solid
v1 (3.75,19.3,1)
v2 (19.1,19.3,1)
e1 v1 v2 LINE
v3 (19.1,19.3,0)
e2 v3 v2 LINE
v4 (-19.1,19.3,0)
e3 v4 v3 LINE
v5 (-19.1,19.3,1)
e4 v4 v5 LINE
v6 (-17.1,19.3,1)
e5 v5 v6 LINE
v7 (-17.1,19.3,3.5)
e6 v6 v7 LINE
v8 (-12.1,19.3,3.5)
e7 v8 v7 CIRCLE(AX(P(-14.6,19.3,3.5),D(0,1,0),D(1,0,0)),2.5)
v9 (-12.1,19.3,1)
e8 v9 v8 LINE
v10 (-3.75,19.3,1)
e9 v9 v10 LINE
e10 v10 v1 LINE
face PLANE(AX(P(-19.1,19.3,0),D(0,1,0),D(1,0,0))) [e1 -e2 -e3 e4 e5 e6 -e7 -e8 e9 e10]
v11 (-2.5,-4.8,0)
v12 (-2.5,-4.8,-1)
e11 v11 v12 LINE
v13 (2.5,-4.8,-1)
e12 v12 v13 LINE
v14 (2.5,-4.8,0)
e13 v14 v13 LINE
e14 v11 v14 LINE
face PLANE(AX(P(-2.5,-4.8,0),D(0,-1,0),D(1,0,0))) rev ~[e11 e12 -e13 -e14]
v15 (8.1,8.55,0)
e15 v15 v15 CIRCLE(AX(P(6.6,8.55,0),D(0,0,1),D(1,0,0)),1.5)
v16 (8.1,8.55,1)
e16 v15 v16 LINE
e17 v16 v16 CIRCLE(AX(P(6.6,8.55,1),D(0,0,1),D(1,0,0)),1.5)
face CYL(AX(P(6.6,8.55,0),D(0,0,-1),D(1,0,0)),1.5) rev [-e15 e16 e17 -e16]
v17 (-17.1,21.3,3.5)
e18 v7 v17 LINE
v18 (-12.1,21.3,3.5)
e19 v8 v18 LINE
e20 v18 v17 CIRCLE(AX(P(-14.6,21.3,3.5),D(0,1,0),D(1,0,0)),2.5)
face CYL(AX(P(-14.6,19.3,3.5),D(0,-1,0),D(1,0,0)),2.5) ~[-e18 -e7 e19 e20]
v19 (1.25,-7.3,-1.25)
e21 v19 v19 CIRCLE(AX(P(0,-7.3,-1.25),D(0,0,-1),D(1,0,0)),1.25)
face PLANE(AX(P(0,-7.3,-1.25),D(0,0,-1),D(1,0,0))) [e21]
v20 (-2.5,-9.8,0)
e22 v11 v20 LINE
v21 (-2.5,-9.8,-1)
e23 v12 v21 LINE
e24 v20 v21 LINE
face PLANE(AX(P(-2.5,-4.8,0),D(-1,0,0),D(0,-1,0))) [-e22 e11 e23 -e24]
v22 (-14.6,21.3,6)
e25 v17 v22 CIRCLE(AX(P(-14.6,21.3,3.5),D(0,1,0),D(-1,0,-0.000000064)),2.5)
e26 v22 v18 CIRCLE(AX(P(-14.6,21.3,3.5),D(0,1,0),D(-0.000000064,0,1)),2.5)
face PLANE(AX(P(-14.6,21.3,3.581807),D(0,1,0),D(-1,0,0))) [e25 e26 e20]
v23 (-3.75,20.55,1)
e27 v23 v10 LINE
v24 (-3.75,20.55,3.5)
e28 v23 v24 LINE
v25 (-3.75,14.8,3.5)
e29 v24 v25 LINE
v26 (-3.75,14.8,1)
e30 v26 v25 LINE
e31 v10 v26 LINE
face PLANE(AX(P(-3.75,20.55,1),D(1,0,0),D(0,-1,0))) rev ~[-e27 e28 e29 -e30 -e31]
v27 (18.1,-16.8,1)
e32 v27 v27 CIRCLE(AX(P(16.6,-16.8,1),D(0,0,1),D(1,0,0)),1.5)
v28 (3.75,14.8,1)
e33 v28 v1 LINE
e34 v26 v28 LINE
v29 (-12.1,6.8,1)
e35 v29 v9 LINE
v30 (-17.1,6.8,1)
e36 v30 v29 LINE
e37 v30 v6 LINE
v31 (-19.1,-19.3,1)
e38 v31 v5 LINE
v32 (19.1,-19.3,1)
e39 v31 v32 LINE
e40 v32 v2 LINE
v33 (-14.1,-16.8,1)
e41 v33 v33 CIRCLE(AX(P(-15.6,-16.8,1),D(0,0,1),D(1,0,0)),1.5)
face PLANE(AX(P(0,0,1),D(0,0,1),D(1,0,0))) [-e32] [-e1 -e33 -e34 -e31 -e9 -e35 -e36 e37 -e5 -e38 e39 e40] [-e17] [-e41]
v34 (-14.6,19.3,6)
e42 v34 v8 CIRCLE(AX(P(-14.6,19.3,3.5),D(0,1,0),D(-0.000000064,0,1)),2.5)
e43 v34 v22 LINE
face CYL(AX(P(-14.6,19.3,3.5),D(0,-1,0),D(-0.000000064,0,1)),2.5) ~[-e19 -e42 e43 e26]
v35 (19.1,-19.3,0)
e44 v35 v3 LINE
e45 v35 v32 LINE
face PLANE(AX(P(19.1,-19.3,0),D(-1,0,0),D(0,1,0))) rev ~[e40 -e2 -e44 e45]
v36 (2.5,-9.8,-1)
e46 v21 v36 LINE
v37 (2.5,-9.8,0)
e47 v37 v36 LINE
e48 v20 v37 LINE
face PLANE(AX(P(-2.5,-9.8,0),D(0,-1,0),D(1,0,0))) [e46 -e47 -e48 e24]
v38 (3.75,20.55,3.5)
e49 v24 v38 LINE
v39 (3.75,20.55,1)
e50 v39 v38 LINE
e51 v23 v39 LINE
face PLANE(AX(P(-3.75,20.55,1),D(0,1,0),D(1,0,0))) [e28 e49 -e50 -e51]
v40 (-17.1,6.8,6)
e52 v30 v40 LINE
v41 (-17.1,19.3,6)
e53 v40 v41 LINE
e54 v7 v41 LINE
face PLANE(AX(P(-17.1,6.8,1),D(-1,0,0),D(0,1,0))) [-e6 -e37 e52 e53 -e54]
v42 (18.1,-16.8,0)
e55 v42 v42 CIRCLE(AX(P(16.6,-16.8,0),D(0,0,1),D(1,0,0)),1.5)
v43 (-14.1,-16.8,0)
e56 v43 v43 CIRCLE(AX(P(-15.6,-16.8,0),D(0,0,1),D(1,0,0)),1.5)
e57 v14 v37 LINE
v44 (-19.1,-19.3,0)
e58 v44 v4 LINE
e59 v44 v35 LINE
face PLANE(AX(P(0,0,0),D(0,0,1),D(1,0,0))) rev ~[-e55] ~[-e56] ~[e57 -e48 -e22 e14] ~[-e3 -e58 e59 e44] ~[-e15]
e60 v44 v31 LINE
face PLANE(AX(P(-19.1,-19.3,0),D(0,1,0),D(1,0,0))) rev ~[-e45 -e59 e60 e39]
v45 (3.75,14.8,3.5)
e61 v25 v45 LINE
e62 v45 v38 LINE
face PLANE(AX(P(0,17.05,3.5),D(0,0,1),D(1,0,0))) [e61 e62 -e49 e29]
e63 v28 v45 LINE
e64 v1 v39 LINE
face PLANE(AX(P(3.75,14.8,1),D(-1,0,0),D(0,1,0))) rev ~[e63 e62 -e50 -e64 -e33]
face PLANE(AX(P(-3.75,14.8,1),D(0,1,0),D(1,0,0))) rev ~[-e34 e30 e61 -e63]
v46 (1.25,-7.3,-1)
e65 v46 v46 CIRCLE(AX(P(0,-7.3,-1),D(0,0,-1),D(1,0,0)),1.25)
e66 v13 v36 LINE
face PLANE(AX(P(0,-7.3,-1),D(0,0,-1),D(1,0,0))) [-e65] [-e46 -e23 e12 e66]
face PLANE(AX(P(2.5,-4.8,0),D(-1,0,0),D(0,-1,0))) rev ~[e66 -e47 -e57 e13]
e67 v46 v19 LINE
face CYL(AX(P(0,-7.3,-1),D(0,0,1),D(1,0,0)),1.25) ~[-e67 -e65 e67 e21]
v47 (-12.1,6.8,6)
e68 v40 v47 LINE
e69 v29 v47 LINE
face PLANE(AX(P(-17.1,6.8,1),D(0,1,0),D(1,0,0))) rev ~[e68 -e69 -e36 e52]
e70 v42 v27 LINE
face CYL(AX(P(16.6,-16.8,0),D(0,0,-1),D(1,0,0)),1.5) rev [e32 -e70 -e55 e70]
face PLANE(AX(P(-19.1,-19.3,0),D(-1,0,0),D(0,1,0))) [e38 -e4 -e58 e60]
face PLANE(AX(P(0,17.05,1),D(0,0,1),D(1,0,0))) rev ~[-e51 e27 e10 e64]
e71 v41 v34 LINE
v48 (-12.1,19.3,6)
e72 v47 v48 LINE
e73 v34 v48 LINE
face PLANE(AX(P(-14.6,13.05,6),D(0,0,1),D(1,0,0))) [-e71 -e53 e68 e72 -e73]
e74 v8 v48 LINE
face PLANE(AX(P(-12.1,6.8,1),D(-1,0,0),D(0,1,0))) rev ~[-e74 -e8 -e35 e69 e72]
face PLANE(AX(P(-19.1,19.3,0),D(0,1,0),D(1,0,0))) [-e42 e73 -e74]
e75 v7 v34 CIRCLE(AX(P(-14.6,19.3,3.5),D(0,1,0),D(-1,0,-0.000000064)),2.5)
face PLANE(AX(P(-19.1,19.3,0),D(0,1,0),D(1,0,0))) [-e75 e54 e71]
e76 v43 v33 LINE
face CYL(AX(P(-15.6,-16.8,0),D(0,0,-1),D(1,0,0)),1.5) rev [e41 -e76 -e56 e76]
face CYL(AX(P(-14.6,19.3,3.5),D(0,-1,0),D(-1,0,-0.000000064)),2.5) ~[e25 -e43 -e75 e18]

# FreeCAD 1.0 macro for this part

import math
import FreeCAD as App
import Part
import Sketcher
from FreeCAD import Vector


def add_polygon(sketch, points):
    """Adds a closed chain of lines whose ends are joined by coincident constraints."""
    first, n = sketch.GeometryCount, len(points)
    for a, b in zip(points, points[1:] + points[:1]):
        sketch.addGeometry(Part.LineSegment(App.Vector(*a, 0), App.Vector(*b, 0)), False)
    for i in range(n):
        sketch.addConstraint(Sketcher.Constraint("Coincident", first + i, 2, first + (i + 1) % n, 1))

doc = App.newDocument("Part")
body = doc.addObject("PartDesign::Body", "Body")

sketch1 = body.newObject("Sketcher::SketchObject", "Sketch")
sketch1.AttachmentSupport = (doc.getObject("XY_Plane"), [""])
sketch1.MapMode = "FlatFace"
add_polygon(sketch1, [(-19.1, 19.3), (-19.1, -19.3), (19.1, -19.3), (19.1, 19.3)])
sketch1.addGeometry(Part.Circle(Vector(-15.6, -16.8, 0), Vector(0, 0, 1), 1.5), False)
sketch1.addGeometry(Part.Circle(Vector(16.6, -16.8, 0), Vector(0, 0, 1), 1.5), False)
sketch1.addGeometry(Part.Circle(Vector(6.6, 8.6, 0), Vector(0, 0, 1), 1.5), False)
sketch1.addConstraint([
    Sketcher.Constraint("Vertical", 0),
    Sketcher.Constraint("Horizontal", 1),
    Sketcher.Constraint("Vertical", 2),
    Sketcher.Constraint("Horizontal", 3),
    Sketcher.Constraint("Equal", 4, 5),
    Sketcher.Constraint("Equal", 5, 6),
    Sketcher.Constraint("Symmetric", 0, 2, 2, 2, -1, 1),
    Sketcher.Constraint("Horizontal", 4, 3, 5, 3),
    Sketcher.Constraint("Diameter", 4, 3.0),
    Sketcher.Constraint("DistanceX", 1, 1, 1, 2, 38.2),
    Sketcher.Constraint("DistanceY", 0, 2, 0, 1, 38.6),
    Sketcher.Constraint("DistanceX", 6, 3, 5, 3, 10.0),
    Sketcher.Constraint("DistanceX", 4, 3, -1, 1, 15.6),
    Sketcher.Constraint("DistanceY", 4, 3, -1, 1, 16.8),
    Sketcher.Constraint("DistanceX", -1, 1, 5, 3, 16.6),
    Sketcher.Constraint("DistanceY", -1, 1, 6, 3, 8.55),
])
pad1 = body.newObject("PartDesign::Pad", "Pad")
pad1.Profile = sketch1
pad1.Length = 1

sketch2 = body.newObject("Sketcher::SketchObject", "Sketch001")
sketch2.AttachmentSupport = (doc.getObject("XY_Plane"), [""])
sketch2.MapMode = "FlatFace"
sketch2.AttachmentOffset = App.Placement(Vector(0, 0, 1), App.Rotation())
add_polygon(sketch2, [(-4, 15), (4, 15), (4, 21), (-4, 21)])
sketch2.addConstraint([
    Sketcher.Constraint("Horizontal", 0),
    Sketcher.Constraint("Vertical", 1),
    Sketcher.Constraint("Horizontal", 2),
    Sketcher.Constraint("Vertical", 3),
    Sketcher.Constraint("DistanceX", 0, 1, 0, 2, 7.5),
    Sketcher.Constraint("DistanceY", 1, 1, 1, 2, 5.75),
    Sketcher.Constraint("DistanceY", -1, 1, 0, 2, 14.8),
    Sketcher.Constraint("DistanceX", -1, 1, 0, 2, 3.75),
])
pad2 = body.newObject("PartDesign::Pad", "Pad001")
pad2.Profile = sketch2
pad2.Length = 2.5

sketch3 = body.newObject("Sketcher::SketchObject", "Sketch002")
sketch3.AttachmentSupport = (doc.getObject("XY_Plane"), [""])
sketch3.MapMode = "FlatFace"
add_polygon(sketch3, [(-2, -10), (-2, -5), (2, -5), (2, -10)])
sketch3.addConstraint([
    Sketcher.Constraint("Vertical", 0),
    Sketcher.Constraint("Horizontal", 1),
    Sketcher.Constraint("Vertical", 2),
    Sketcher.Constraint("Horizontal", 3),
    Sketcher.Constraint("Equal", 3, 0),
    Sketcher.Constraint("DistanceX", 1, 1, 1, 2, 5.0),
    Sketcher.Constraint("DistanceX", 0, 2, -1, 1, 2.5),
    Sketcher.Constraint("DistanceY", 0, 2, -1, 1, 4.8),
])
pad3 = body.newObject("PartDesign::Pad", "Pad002")
pad3.Profile = sketch3
pad3.Length = 1
pad3.Reversed = True

sketch4 = body.newObject("Sketcher::SketchObject", "Sketch003")
sketch4.AttachmentSupport = (doc.getObject("XY_Plane"), [""])
sketch4.MapMode = "FlatFace"
sketch4.AttachmentOffset = App.Placement(Vector(0, 0, -1), App.Rotation())
sketch4.addGeometry(Part.Circle(Vector(0, -7.3, 0), Vector(0, 0, 1), 1.2), False)
sketch4.addConstraint([
    Sketcher.Constraint("PointOnObject", 0, 3, -2),
    Sketcher.Constraint("Diameter", 0, 2.5),
    Sketcher.Constraint("DistanceY", 0, 3, -1, 1, 7.3),
])
pad4 = body.newObject("PartDesign::Pad", "Pad003")
pad4.Profile = sketch4
pad4.Length = 0.25
pad4.Reversed = True

sketch5 = body.newObject("Sketcher::SketchObject", "Sketch004")
sketch5.AttachmentSupport = (doc.getObject("XY_Plane"), [""])
sketch5.MapMode = "FlatFace"
sketch5.AttachmentOffset = App.Placement(Vector(0, 0, 1), App.Rotation())
add_polygon(sketch5, [(-17, 19), (-17, 7), (-12, 7), (-12, 19)])
sketch5.addConstraint([
    Sketcher.Constraint("Vertical", 0),
    Sketcher.Constraint("Horizontal", 1),
    Sketcher.Constraint("Vertical", 2),
    Sketcher.Constraint("Horizontal", 3),
    Sketcher.Constraint("DistanceX", 1, 1, 1, 2, 5.0),
    Sketcher.Constraint("DistanceY", 0, 2, 0, 1, 12.5),
    Sketcher.Constraint("DistanceX", 0, 2, -1, 1, 17.1),
    Sketcher.Constraint("DistanceY", -1, 1, 0, 2, 6.8),
])
pad5 = body.newObject("PartDesign::Pad", "Pad004")
pad5.Profile = sketch5
pad5.Length = 5

sketch6 = body.newObject("Sketcher::SketchObject", "Sketch005")
sketch6.AttachmentSupport = (doc.getObject("XZ_Plane"), [""])
sketch6.MapMode = "FlatFace"
sketch6.AttachmentOffset = App.Placement(Vector(0, 0, -19.3), App.Rotation())
sketch6.addGeometry([
    Part.ArcOfCircle(Part.Circle(Vector(-14.6, 3.5, 0), Vector(0, 0, 1), 2.5), math.radians(180), math.radians(360)),
    Part.ArcOfCircle(Part.Circle(Vector(-14.6, 3.5, 0), Vector(0, 0, 1), 2.5), math.radians(90), math.radians(180)),
    Part.ArcOfCircle(Part.Circle(Vector(-14.6, 3.5, 0), Vector(0, 0, 1), 2.5), math.radians(0), math.radians(90)),
], False)
sketch6.addConstraint([
    Sketcher.Constraint("Tangent", 0, 1, 1, 2),
    Sketcher.Constraint("Tangent", 1, 1, 2, 2),
    Sketcher.Constraint("Tangent", 2, 1, 0, 2),
    Sketcher.Constraint("Horizontal", 2, 3, 0, 1),
    Sketcher.Constraint("Horizontal", 0, 1, 2, 1),
    Sketcher.Constraint("Vertical", 2, 3, 1, 1),
    Sketcher.Constraint("Radius", 0, 2.5),
    Sketcher.Constraint("DistanceY", -1, 1, 1, 1, 6.0),
    Sketcher.Constraint("DistanceX", 0, 3, -1, 1, 14.6),
])
pad6 = body.newObject("PartDesign::Pad", "Pad005")
pad6.Profile = sketch6
pad6.Length = 2
pad6.Reversed = True

doc.recompute()
